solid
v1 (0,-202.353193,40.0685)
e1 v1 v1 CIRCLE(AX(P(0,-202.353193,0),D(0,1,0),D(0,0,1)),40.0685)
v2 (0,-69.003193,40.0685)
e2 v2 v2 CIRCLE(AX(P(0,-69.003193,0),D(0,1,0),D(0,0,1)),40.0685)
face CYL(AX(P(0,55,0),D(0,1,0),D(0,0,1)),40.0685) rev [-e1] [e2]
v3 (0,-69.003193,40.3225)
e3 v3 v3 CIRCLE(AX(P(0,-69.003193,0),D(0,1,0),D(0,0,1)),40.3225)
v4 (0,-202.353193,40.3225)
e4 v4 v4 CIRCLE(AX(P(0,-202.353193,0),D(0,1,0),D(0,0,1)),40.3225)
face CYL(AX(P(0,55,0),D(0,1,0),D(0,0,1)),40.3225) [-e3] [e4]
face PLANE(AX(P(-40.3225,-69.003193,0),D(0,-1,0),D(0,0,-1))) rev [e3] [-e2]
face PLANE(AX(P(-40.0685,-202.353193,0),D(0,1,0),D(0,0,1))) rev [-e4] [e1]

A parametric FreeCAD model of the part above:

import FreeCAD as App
import Part
import Sketcher
from FreeCAD import Vector
Q = App.Units.Quantity

doc = App.newDocument("Part")
body = doc.addObject("PartDesign::Body", "Body")

sketch1 = doc.addObject("Sketcher::SketchObject", "Sketch")
body.addObject(sketch1)
sketch1.AttachmentSupport = (doc.XY_Plane, [""])
sketch1.MapMode = "FlatFace"
sketch1.addGeometry(Part.LineSegment(Vector(-40.32, -69, 0), Vector(-40.32, -202.35, 0)), False)
sketch1.addGeometry(Part.LineSegment(Vector(-40.32, -202.35, 0), Vector(-40.07, -202.35, 0)), False)
sketch1.addGeometry(Part.LineSegment(Vector(-40.07, -202.35, 0), Vector(-40.07, -69, 0)), False)
sketch1.addGeometry(Part.LineSegment(Vector(-40.07, -69, 0), Vector(-40.32, -69, 0)), False)
sketch1.addConstraint(Sketcher.Constraint("Coincident", 0, 2, 1, 1))
sketch1.addConstraint(Sketcher.Constraint("Coincident", 1, 2, 2, 1))
sketch1.addConstraint(Sketcher.Constraint("Coincident", 2, 2, 3, 1))
sketch1.addConstraint(Sketcher.Constraint("Coincident", 3, 2, 0, 1))
sketch1.addConstraint(Sketcher.Constraint("Vertical", 0))
sketch1.addConstraint(Sketcher.Constraint("Horizontal", 1))
sketch1.addConstraint(Sketcher.Constraint("Vertical", 2))
sketch1.addConstraint(Sketcher.Constraint("Horizontal", 3))
sketch1.addConstraint(Sketcher.Constraint("DistanceX", 1, 1, 1, 2, Q("0.01 in")))
sketch1.addConstraint(Sketcher.Constraint("DistanceY", 0, 2, 0, 1, Q("5.25 in")))
sketch1.addConstraint(Sketcher.Constraint("DistanceX", 0, 2, -1, 1, Q("1.5875 in")))
sketch1.addConstraint(Sketcher.Constraint("DistanceY", 0, 2, -1, 1, Q("202.353193 mm")))
revolution = doc.addObject("PartDesign::Revolution", "Revolution")
body.addObject(revolution)
revolution.Profile = sketch1
revolution.ReferenceAxis = (sketch1, ["V_Axis"])
revolution.Angle = 360

doc.recompute()
